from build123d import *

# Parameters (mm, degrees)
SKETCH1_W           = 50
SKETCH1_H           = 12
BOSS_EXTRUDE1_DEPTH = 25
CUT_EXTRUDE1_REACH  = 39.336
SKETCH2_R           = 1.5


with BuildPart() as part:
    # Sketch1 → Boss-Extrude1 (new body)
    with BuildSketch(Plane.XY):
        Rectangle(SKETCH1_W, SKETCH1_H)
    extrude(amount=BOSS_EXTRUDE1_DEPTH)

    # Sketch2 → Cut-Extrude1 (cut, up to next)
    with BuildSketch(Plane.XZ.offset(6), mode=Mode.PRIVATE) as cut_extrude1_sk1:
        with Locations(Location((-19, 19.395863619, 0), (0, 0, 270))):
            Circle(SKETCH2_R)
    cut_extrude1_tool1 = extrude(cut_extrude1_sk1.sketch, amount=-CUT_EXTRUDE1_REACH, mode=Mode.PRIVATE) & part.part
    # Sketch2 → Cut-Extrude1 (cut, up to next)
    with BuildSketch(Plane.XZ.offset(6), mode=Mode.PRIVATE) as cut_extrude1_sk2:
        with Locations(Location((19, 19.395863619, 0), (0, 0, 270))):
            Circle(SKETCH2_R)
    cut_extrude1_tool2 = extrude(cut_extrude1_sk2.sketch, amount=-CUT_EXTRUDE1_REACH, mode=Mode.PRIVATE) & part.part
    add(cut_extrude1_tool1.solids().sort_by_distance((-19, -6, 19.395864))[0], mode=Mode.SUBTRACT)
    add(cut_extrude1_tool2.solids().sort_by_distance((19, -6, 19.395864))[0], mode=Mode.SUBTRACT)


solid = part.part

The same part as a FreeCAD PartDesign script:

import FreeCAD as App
import Part
import Sketcher
from FreeCAD import Vector

doc = App.newDocument("Part")
body = doc.addObject("PartDesign::Body", "Body")

sketch1 = body.newObject("Sketcher::SketchObject", "Sketch")
sketch1.AttachmentSupport = (doc.getObject("XY_Plane"), [""])
sketch1.MapMode = "FlatFace"
sketch1.addGeometry([
    Part.LineSegment(Vector(-25, 6, 0), Vector(-25, -6, 0)),
    Part.LineSegment(Vector(-25, -6, 0), Vector(25, -6, 0)),
    Part.LineSegment(Vector(25, -6, 0), Vector(25, 6, 0)),
    Part.LineSegment(Vector(25, 6, 0), Vector(-25, 6, 0)),
], False)
sketch1.addConstraint([
    Sketcher.Constraint("Coincident", 0, 2, 1, 1),
    Sketcher.Constraint("Coincident", 1, 2, 2, 1),
    Sketcher.Constraint("Coincident", 2, 2, 3, 1),
    Sketcher.Constraint("Coincident", 3, 2, 0, 1),
    Sketcher.Constraint("Vertical", 0),
    Sketcher.Constraint("Horizontal", 1),
    Sketcher.Constraint("Vertical", 2),
    Sketcher.Constraint("Horizontal", 3),
    Sketcher.Constraint("Symmetric", 0, 2, 2, 2, -1, 1),
    Sketcher.Constraint("DistanceX", 1, 1, 1, 2, 50.0),
    Sketcher.Constraint("DistanceY", 0, 2, 0, 1, 12.0),
])
pad1 = body.newObject("PartDesign::Pad", "Pad")
pad1.Profile = sketch1
pad1.Length = 25

sketch2 = body.newObject("Sketcher::SketchObject", "Sketch001")
sketch2.AttachmentSupport = (doc.getObject("XZ_Plane"), [""])
sketch2.MapMode = "FlatFace"
sketch2.AttachmentOffset = App.Placement(Vector(0, 0, 6), App.Rotation())
sketch2.addGeometry(Part.Circle(Vector(-19, 19.395864, 0), Vector(0, 0, 1), 1.5), False)
sketch2.addConstraint([
    Sketcher.Constraint("Diameter", 0, 3.0),
    Sketcher.Constraint("DistanceX", 0, 3, -1, 1, 19.0),
    Sketcher.Constraint("DistanceY", -1, 1, 0, 3, 19.395864),
])
pocket1 = body.newObject("PartDesign::Pocket", "Pocket")
pocket1.Profile = sketch2
pocket1.Type = "UpToFirst"

sketch3 = body.newObject("Sketcher::SketchObject", "Sketch002")
sketch3.AttachmentSupport = (doc.getObject("XZ_Plane"), [""])
sketch3.MapMode = "FlatFace"
sketch3.AttachmentOffset = App.Placement(Vector(0, 0, 6), App.Rotation())
sketch3.addGeometry(Part.Circle(Vector(19, 19.395864, 0), Vector(0, 0, 1), 1.5), False)
sketch3.addConstraint([
    Sketcher.Constraint("Diameter", 0, 3.0),
    Sketcher.Constraint("DistanceX", -1, 1, 0, 3, 19.0),
    Sketcher.Constraint("DistanceY", -1, 1, 0, 3, 19.395864),
])
pocket2 = body.newObject("PartDesign::Pocket", "Pocket001")
pocket2.Profile = sketch3
pocket2.Type = "UpToFirst"

doc.recompute()
